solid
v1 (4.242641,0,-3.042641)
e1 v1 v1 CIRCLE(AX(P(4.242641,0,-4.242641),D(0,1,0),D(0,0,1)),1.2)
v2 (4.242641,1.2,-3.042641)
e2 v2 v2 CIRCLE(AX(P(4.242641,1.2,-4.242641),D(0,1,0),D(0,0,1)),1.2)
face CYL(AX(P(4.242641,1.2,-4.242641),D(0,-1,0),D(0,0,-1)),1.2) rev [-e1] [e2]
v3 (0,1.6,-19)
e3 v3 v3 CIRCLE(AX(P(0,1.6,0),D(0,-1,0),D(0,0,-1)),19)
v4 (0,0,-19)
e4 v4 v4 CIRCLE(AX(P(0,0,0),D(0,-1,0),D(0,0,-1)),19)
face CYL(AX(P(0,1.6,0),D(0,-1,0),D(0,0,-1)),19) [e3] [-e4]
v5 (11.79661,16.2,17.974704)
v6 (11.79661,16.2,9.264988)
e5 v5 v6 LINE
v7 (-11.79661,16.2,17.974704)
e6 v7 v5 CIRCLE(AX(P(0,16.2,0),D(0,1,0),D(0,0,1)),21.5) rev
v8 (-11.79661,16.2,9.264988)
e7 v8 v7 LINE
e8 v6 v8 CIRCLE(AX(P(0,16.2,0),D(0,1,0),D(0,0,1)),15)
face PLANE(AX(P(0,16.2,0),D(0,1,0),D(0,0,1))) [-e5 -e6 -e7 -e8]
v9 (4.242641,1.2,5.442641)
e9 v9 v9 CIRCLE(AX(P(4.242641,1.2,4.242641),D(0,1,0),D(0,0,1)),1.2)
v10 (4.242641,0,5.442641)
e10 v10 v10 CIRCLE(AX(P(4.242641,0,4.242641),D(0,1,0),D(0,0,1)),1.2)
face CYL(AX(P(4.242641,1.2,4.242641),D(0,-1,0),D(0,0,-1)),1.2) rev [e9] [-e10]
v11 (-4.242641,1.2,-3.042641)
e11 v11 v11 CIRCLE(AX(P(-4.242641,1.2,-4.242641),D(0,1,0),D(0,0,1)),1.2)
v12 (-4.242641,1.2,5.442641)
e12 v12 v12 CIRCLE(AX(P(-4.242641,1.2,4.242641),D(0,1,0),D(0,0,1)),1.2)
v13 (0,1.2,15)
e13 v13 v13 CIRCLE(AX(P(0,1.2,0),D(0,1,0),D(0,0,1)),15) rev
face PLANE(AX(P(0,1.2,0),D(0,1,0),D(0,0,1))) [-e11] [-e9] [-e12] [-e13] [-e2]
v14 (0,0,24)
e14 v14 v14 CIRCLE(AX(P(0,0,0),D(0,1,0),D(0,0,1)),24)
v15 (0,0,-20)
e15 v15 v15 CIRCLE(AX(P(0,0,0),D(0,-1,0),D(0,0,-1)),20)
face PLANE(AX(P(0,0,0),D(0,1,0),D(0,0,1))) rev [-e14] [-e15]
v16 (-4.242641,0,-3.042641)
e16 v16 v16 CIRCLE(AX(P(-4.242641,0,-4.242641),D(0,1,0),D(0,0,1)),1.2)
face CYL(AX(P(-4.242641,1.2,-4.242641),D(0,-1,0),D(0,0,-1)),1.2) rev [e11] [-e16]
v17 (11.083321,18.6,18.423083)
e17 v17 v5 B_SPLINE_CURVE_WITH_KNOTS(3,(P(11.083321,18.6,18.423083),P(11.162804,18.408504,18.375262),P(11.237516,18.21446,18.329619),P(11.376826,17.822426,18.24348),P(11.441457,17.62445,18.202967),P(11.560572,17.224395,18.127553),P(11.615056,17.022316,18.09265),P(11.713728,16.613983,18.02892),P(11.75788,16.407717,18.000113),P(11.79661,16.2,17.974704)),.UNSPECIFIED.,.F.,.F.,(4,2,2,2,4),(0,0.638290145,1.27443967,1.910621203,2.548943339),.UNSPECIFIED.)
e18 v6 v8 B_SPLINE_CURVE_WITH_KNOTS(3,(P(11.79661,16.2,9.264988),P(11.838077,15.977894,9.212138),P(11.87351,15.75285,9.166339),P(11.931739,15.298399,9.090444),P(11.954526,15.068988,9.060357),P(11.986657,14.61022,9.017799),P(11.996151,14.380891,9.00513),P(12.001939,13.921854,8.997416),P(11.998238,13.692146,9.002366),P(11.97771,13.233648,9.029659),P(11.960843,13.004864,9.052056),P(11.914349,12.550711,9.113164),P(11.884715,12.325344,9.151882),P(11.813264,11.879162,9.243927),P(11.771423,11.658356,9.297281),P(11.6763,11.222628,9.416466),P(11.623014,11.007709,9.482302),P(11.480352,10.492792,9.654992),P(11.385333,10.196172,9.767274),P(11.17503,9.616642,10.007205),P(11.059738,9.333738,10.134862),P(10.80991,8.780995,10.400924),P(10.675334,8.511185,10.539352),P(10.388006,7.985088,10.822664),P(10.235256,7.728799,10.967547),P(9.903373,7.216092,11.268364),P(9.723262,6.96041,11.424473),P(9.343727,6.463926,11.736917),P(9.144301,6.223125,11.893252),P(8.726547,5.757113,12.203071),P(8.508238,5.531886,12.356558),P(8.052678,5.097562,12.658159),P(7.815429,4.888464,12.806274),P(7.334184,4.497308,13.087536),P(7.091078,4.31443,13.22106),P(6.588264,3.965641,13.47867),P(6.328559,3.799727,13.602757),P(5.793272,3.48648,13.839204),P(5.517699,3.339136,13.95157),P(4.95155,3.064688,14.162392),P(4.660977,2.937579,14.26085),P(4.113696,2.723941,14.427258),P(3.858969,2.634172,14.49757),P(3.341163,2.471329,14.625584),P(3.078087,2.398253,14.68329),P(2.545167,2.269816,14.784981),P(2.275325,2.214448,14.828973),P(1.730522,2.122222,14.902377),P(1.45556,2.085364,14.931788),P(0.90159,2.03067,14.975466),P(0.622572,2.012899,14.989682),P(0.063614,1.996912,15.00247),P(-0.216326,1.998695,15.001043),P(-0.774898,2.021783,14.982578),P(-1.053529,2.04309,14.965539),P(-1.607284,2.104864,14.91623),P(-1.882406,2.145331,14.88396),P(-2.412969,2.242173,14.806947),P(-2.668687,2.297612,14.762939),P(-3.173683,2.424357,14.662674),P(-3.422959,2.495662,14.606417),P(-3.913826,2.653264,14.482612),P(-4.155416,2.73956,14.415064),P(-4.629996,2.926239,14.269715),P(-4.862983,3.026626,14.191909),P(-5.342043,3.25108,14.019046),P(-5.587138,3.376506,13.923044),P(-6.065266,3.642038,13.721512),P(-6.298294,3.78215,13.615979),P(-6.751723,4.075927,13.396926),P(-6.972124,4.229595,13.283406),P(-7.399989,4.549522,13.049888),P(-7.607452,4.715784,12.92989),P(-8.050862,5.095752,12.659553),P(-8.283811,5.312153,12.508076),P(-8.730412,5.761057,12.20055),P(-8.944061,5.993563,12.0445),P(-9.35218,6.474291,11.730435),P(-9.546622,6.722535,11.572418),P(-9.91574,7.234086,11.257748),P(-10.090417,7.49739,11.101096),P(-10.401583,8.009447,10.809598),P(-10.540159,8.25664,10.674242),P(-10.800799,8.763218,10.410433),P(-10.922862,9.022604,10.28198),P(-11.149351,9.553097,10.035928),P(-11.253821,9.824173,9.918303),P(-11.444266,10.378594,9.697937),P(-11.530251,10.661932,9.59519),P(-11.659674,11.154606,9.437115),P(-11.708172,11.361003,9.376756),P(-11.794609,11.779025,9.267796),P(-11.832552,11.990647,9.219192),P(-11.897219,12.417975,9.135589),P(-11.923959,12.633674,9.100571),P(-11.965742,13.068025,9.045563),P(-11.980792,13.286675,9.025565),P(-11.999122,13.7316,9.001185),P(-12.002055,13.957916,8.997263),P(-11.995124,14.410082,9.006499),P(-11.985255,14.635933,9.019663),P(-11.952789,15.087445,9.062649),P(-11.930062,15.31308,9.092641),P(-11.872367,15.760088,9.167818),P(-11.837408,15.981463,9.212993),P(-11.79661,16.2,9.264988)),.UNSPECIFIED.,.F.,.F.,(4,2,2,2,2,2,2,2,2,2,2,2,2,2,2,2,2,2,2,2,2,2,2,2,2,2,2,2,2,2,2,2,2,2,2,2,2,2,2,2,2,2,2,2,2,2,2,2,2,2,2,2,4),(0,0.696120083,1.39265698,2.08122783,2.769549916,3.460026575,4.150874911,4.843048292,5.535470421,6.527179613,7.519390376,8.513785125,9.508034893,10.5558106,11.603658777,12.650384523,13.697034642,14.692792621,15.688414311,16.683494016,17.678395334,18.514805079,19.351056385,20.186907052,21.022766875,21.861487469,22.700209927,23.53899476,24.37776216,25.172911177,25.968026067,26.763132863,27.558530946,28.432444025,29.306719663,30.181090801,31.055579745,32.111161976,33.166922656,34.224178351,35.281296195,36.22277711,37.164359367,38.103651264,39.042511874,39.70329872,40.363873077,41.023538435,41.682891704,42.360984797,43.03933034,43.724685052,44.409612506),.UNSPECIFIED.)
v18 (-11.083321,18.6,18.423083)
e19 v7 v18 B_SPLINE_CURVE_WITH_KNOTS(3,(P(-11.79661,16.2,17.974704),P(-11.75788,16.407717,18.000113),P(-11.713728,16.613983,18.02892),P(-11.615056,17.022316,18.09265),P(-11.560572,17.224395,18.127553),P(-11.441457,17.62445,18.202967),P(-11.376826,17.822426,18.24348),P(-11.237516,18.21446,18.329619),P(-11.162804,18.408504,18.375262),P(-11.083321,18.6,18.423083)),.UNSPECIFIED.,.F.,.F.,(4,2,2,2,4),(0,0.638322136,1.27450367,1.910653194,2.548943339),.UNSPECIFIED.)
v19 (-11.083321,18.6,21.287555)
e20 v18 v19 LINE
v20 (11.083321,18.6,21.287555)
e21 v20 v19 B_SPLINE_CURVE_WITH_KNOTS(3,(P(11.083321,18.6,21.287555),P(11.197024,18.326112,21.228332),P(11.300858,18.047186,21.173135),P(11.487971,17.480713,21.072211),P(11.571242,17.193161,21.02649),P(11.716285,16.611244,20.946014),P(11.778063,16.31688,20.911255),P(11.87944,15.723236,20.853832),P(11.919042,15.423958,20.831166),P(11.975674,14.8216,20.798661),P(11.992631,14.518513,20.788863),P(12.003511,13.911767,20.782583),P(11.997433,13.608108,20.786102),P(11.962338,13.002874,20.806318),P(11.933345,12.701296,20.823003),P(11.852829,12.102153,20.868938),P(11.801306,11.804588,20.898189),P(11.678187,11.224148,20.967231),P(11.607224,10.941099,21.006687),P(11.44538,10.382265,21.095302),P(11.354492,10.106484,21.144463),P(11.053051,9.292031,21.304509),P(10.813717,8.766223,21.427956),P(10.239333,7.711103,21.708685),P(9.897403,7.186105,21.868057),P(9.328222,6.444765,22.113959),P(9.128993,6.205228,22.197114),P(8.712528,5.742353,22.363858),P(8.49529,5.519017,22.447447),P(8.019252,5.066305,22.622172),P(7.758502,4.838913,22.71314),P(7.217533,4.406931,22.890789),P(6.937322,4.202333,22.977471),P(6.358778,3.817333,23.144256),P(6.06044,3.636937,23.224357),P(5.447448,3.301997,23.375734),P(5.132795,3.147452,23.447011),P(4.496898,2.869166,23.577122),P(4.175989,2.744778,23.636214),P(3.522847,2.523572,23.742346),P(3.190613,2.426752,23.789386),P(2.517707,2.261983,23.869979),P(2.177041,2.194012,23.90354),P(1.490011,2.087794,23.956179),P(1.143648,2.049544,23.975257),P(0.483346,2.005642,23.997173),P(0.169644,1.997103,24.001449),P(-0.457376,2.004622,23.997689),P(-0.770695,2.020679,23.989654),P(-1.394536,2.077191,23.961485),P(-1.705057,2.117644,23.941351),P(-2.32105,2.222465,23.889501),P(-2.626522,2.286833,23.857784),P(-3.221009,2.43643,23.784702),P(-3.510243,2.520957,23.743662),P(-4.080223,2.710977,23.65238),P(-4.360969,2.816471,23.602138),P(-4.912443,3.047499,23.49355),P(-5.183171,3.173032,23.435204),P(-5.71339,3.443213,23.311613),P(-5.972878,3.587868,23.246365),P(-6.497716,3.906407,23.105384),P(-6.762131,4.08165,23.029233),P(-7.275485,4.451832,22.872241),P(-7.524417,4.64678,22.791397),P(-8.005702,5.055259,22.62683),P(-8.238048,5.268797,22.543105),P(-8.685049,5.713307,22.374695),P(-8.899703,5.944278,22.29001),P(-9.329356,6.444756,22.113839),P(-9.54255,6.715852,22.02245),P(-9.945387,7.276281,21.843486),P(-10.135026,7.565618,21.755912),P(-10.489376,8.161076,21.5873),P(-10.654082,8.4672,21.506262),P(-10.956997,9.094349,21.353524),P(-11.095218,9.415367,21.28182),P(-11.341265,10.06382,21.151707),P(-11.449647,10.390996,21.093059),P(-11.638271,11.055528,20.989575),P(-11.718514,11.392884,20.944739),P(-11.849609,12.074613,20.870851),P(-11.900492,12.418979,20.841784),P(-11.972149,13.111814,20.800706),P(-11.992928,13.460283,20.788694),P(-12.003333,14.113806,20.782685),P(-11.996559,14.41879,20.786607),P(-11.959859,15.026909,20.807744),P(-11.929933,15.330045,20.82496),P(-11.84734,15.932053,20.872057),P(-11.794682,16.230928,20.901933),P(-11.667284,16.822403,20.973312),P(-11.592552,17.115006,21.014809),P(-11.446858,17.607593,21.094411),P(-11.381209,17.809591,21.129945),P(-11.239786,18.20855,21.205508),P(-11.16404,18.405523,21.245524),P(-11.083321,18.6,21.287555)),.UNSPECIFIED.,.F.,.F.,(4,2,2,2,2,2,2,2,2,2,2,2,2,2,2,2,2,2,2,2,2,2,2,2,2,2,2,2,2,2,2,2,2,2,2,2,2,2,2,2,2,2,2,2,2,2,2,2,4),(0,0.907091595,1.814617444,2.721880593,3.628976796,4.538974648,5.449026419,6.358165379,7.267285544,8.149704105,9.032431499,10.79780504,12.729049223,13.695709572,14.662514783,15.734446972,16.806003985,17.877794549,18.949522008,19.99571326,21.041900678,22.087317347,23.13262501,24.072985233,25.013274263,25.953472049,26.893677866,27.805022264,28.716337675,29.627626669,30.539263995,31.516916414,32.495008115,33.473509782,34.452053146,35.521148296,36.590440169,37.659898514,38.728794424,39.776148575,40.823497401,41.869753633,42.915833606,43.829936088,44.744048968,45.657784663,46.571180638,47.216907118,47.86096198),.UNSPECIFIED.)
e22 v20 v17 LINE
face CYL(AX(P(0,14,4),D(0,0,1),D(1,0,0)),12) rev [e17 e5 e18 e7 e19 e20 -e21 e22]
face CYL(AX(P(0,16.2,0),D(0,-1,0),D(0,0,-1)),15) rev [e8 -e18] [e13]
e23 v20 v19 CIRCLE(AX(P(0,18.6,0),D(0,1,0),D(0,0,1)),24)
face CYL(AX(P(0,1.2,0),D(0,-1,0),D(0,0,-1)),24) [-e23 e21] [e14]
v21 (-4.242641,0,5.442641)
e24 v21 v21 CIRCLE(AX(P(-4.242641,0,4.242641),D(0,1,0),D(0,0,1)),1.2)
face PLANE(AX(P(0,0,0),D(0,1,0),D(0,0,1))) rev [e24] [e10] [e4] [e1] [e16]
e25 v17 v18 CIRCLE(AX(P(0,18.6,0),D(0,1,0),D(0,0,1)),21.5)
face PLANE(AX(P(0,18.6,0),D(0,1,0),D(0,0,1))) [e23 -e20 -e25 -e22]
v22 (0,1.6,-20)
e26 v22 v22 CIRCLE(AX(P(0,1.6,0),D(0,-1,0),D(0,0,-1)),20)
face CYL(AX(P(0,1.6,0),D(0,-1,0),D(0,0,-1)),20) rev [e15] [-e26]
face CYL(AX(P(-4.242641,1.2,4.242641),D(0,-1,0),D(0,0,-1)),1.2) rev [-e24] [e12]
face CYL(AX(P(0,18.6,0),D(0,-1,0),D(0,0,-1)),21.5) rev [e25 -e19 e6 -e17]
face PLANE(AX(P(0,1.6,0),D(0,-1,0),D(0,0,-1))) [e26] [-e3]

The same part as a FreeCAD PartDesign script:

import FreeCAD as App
import Part
import Sketcher

V = App.Vector

doc = App.newDocument("Part")
body = doc.addObject("PartDesign::Body", "Body")

# Sketch on XZ plane
sketch1 = body.newObject("Sketcher::SketchObject", "Sketch")
sketch1.AttachmentSupport = (doc.getObject("XZ_Plane"), [""])
sketch1.MapMode = "FlatFace"
sketch1.addGeometry(Part.Circle(V(0, 0, 0), V(0, 0, 1), 24), False)
sketch1.addGeometry(Part.Circle(V(-4.242641, -4.242641, 0), V(0, 0, 1), 1.2), False)
sketch1.addGeometry(Part.Circle(V(-4.242641, 4.242641, 0), V(0, 0, 1), 1.2), False)
sketch1.addGeometry(Part.Circle(V(4.242641, -4.242641, 0), V(0, 0, 1), 1.2), False)
sketch1.addGeometry(Part.Circle(V(4.242641, 4.242641, 0), V(0, 0, 1), 1.2), False)
sketch1.addConstraint(Sketcher.Constraint("Coincident", 0, 3, -1, 1))
sketch1.addConstraint(Sketcher.Constraint("Equal", 1, 2))
sketch1.addConstraint(Sketcher.Constraint("Equal", 2, 3))
sketch1.addConstraint(Sketcher.Constraint("Equal", 3, 4))
sketch1.addConstraint(Sketcher.Constraint("Symmetric", 2, 3, 3, 3, -1, 1))
sketch1.addConstraint(Sketcher.Constraint("Symmetric", 1, 3, 4, 3, -1, 1))
sketch1.addConstraint(Sketcher.Constraint("Symmetric", 1, 3, 3, 3, -2))
sketch1.addConstraint(Sketcher.Constraint("Diameter", 0, 48.0))
sketch1.addConstraint(Sketcher.Constraint("Diameter", 1, 2.4))
sketch1.addConstraint(Sketcher.Constraint("DistanceX", 1, 3, -1, 1, 4.242641))
sketch1.addConstraint(Sketcher.Constraint("DistanceY", 1, 3, -1, 1, 4.242641))
pad1 = body.newObject("PartDesign::Pad", "Pad")
pad1.Profile = sketch1
pad1.Length = 1.2
pad1.Reversed = True

# Sketch on XZ plane
sketch2 = body.newObject("Sketcher::SketchObject", "Sketch001")
sketch2.AttachmentSupport = (doc.getObject("XZ_Plane"), [""])
sketch2.MapMode = "FlatFace"
sketch2.AttachmentOffset = App.Placement(V(0, 0, -1.2), App.Rotation())
sketch2.addGeometry(Part.Circle(V(0, 0, 0), V(0, 0, 1), 24), False)
sketch2.addGeometry(Part.Circle(V(0, 0, 0), V(0, 0, 1), 15), False)
sketch2.addConstraint(Sketcher.Constraint("Coincident", 0, 3, -1, 1))
sketch2.addConstraint(Sketcher.Constraint("Coincident", 1, 3, -1, 1))
sketch2.addConstraint(Sketcher.Constraint("Diameter", 0, 48.0))
sketch2.addConstraint(Sketcher.Constraint("Diameter", 1, 30.0))
pad2 = body.newObject("PartDesign::Pad", "Pad001")
pad2.Profile = sketch2
pad2.Length = 15
pad2.Reversed = True

# Sketch on XZ plane
sketch3 = body.newObject("Sketcher::SketchObject", "Sketch002")
sketch3.AttachmentSupport = (doc.getObject("XZ_Plane"), [""])
sketch3.MapMode = "FlatFace"
sketch3.AttachmentOffset = App.Placement(V(0, 0, -16.2), App.Rotation())
sketch3.addGeometry(Part.Circle(V(0, 0, 0), V(0, 0, 1), 24), False)
sketch3.addGeometry(Part.Circle(V(0, 0, 0), V(0, 0, 1), 21.5), False)
sketch3.addConstraint(Sketcher.Constraint("Coincident", 0, 3, -1, 1))
sketch3.addConstraint(Sketcher.Constraint("Coincident", 1, 3, -1, 1))
sketch3.addConstraint(Sketcher.Constraint("Diameter", 0, 48.0))
sketch3.addConstraint(Sketcher.Constraint("Diameter", 1, 43.0))
pad3 = body.newObject("PartDesign::Pad", "Pad002")
pad3.Profile = sketch3
pad3.Length = 2.4
pad3.Reversed = True

# Sketch on XY plane
sketch4 = body.newObject("Sketcher::SketchObject", "Sketch003")
sketch4.AttachmentSupport = (doc.getObject("XY_Plane"), [""])
sketch4.MapMode = "FlatFace"
sketch4.AttachmentOffset = App.Placement(V(0, 0, 24), App.Rotation())
sketch4.addGeometry(Part.Circle(V(0, 14, 0), V(0, 0, 1), 12), False)
sketch4.addConstraint(Sketcher.Constraint("PointOnObject", 0, 3, -2))
sketch4.addConstraint(Sketcher.Constraint("Diameter", 0, 24.0))
sketch4.addConstraint(Sketcher.Constraint("DistanceY", -1, 1, 0, 3, 14.0))
pocket1 = body.newObject("PartDesign::Pocket", "Pocket")
pocket1.Profile = sketch4
pocket1.Length = 20

# Sketch on XZ plane
sketch5 = body.newObject("Sketcher::SketchObject", "Sketch004")
sketch5.AttachmentSupport = (doc.getObject("XZ_Plane"), [""])
sketch5.MapMode = "FlatFace"
sketch5.addGeometry(Part.Circle(V(0, 0, 0), V(0, 0, 1), 20), False)
sketch5.addGeometry(Part.Circle(V(0, 0, 0), V(0, 0, 1), 19), False)
sketch5.addConstraint(Sketcher.Constraint("Coincident", 0, 3, -1, 1))
sketch5.addConstraint(Sketcher.Constraint("Coincident", 1, 3, -1, 1))
sketch5.addConstraint(Sketcher.Constraint("Diameter", 0, 40.0))
sketch5.addConstraint(Sketcher.Constraint("Diameter", 1, 38.0))
pocket2 = body.newObject("PartDesign::Pocket", "Pocket001")
pocket2.Profile = sketch5
pocket2.Length = 1.6

doc.recompute()
